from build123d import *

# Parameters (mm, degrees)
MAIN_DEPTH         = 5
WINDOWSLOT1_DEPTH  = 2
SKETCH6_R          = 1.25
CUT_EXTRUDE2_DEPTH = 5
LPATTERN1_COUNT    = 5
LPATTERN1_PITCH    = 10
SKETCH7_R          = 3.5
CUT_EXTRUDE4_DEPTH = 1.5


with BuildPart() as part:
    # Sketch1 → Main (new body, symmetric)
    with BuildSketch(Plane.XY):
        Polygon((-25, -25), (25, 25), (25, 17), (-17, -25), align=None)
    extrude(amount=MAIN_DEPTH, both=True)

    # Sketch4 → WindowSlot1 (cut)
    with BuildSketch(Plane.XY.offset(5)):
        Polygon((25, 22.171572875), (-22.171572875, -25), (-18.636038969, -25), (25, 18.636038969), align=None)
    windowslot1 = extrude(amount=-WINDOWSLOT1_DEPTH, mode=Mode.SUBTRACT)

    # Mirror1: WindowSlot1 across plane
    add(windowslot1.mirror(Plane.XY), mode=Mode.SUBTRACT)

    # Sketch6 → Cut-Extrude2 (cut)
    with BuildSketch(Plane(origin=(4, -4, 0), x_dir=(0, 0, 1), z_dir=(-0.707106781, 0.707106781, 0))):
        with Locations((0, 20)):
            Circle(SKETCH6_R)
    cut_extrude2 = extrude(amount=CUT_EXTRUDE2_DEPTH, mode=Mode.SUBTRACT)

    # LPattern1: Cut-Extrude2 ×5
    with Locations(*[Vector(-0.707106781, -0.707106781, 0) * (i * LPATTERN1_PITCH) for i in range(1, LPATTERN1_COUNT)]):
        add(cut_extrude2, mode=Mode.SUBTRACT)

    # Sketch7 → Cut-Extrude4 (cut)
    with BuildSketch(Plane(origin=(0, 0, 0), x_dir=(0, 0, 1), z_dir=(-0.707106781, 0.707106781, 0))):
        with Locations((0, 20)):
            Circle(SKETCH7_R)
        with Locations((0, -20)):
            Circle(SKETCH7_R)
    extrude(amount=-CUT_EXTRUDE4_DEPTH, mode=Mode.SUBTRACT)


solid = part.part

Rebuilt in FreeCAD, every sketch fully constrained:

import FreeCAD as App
import Part
import Sketcher

V = App.Vector

doc = App.newDocument("Part")
body = doc.addObject("PartDesign::Body", "Body")

# Sketch on XY plane
sketch1 = body.newObject("Sketcher::SketchObject", "Sketch")
sketch1.AttachmentSupport = (doc.getObject("XY_Plane"), [""])
sketch1.MapMode = "FlatFace"
sketch1.addGeometry([
    Part.LineSegment(V(25, 25, 0), V(-25, -25, 0)),
    Part.LineSegment(V(-25, -25, 0), V(-17, -25, 0)),
    Part.LineSegment(V(-17, -25, 0), V(25, 17, 0)),
    Part.LineSegment(V(25, 17, 0), V(25, 25, 0)),
], False)
sketch1.addConstraint([
    Sketcher.Constraint("Coincident", 0, 2, 1, 1),
    Sketcher.Constraint("Coincident", 1, 2, 2, 1),
    Sketcher.Constraint("Coincident", 2, 2, 3, 1),
    Sketcher.Constraint("Coincident", 3, 2, 0, 1),
    Sketcher.Constraint("Horizontal", 1),
    Sketcher.Constraint("Vertical", 3),
    Sketcher.Constraint("Symmetric", 0, 2, 3, 2, -1, 1),
    Sketcher.Constraint("Parallel", 0, 2),
    Sketcher.Constraint("Equal", 1, 3),
    Sketcher.Constraint("DistanceX", 1, 1, 1, 2, 8.0),
    Sketcher.Constraint("DistanceX", 0, 2, -1, 1, 25.0),
])
pad1 = body.newObject("PartDesign::Pad", "Pad")
pad1.Profile = sketch1
pad1.Length = 10
pad1.Midplane = True

# Sketch on XY plane
sketch2 = body.newObject("Sketcher::SketchObject", "Sketch001")
sketch2.AttachmentSupport = (doc.getObject("XY_Plane"), [""])
sketch2.MapMode = "FlatFace"
sketch2.AttachmentOffset = App.Placement(V(0, 0, 5), App.Rotation())
sketch2.addGeometry([
    Part.LineSegment(V(25, 22.2, 0), V(-22.2, -25, 0)),
    Part.LineSegment(V(-22.2, -25, 0), V(-18.6, -25, 0)),
    Part.LineSegment(V(-18.6, -25, 0), V(25, 18.6, 0)),
    Part.LineSegment(V(25, 18.6, 0), V(25, 22.2, 0)),
], False)
sketch2.addConstraint([
    Sketcher.Constraint("Coincident", 0, 2, 1, 1),
    Sketcher.Constraint("Coincident", 1, 2, 2, 1),
    Sketcher.Constraint("Coincident", 2, 2, 3, 1),
    Sketcher.Constraint("Coincident", 3, 2, 0, 1),
    Sketcher.Constraint("Horizontal", 1),
    Sketcher.Constraint("Vertical", 3),
    Sketcher.Constraint("Parallel", 0, 2),
    Sketcher.Constraint("Equal", 1, 3),
    Sketcher.Constraint("DistanceY", 0, 2, -1, 1, 25.0),
    Sketcher.Constraint("DistanceX", -1, 1, 2, 2, 25.0),
    Sketcher.Constraint("Distance", 0, 66.710678),
    Sketcher.Constraint("Distance", 2, 61.710678),
])
pocket1 = body.newObject("PartDesign::Pocket", "Pocket")
pocket1.Profile = sketch2
pocket1.Length = 2
doc.recompute()

mirrored = body.newObject("PartDesign::Mirrored", "Mirrored")
mirrored.Originals = [pocket1]
mirrored.MirrorPlane = (doc.getObject("XY_Plane"), [""])
body.Tip = mirrored

# Sketch on an angled plane
sketch3 = body.newObject("Sketcher::SketchObject", "Sketch002")
sketch3.Placement = App.Placement(V(4, -4, 0), App.Rotation(V(0, 0, 1), V(0.707106781, 0.707106781, 0), V(-0.707106781, 0.707106781, 0), "ZXY"))
sketch3.addGeometry(Part.Circle(V(0, 20, 0), V(0, 0, 1), 1.2), False)
sketch3.addConstraint([
    Sketcher.Constraint("PointOnObject", 0, 3, -2),
    Sketcher.Constraint("Diameter", 0, 2.5),
    Sketcher.Constraint("DistanceY", -1, 1, 0, 3, 20.0),
])
pocket2 = body.newObject("PartDesign::Pocket", "Pocket001")
pocket2.Profile = sketch3
pocket2.Length = 5
pocket2.Reversed = True
doc.recompute()

datumline = body.newObject("PartDesign::Line", "DatumLine")
datumline.Placement = App.Placement(V(0, 0, 0), App.Rotation(V(0, 0, 1), V(-0.707106781, -0.707106781, 0)))
linearpattern = body.newObject("PartDesign::LinearPattern", "LinearPattern")
linearpattern.Originals = [pocket2]
linearpattern.Direction = (datumline, [""])
linearpattern.Mode = "offset"
linearpattern.Offset = 10
linearpattern.Occurrences = 5
body.Tip = linearpattern

# Sketch on an angled plane
sketch4 = body.newObject("Sketcher::SketchObject", "Sketch003")
sketch4.Placement = App.Placement(V(0, 0, 0), App.Rotation(V(0, 0, 1), V(0.707106781, 0.707106781, 0), V(-0.707106781, 0.707106781, 0), "ZXY"))
sketch4.addGeometry([
    Part.Circle(V(0, 20, 0), V(0, 0, 1), 3.5),
    Part.Circle(V(0, -20, 0), V(0, 0, 1), 3.5),
], False)
sketch4.addConstraint([
    Sketcher.Constraint("Equal", 0, 1),
    Sketcher.Constraint("Symmetric", 0, 3, 1, 3, -1, 1),
    Sketcher.Constraint("PointOnObject", 0, 3, -2),
    Sketcher.Constraint("Diameter", 0, 7.0),
    Sketcher.Constraint("DistanceY", -1, 1, 0, 3, 20.0),
])
pocket3 = body.newObject("PartDesign::Pocket", "Pocket002")
pocket3.Profile = sketch4
pocket3.Length = 1.5

doc.recompute()
